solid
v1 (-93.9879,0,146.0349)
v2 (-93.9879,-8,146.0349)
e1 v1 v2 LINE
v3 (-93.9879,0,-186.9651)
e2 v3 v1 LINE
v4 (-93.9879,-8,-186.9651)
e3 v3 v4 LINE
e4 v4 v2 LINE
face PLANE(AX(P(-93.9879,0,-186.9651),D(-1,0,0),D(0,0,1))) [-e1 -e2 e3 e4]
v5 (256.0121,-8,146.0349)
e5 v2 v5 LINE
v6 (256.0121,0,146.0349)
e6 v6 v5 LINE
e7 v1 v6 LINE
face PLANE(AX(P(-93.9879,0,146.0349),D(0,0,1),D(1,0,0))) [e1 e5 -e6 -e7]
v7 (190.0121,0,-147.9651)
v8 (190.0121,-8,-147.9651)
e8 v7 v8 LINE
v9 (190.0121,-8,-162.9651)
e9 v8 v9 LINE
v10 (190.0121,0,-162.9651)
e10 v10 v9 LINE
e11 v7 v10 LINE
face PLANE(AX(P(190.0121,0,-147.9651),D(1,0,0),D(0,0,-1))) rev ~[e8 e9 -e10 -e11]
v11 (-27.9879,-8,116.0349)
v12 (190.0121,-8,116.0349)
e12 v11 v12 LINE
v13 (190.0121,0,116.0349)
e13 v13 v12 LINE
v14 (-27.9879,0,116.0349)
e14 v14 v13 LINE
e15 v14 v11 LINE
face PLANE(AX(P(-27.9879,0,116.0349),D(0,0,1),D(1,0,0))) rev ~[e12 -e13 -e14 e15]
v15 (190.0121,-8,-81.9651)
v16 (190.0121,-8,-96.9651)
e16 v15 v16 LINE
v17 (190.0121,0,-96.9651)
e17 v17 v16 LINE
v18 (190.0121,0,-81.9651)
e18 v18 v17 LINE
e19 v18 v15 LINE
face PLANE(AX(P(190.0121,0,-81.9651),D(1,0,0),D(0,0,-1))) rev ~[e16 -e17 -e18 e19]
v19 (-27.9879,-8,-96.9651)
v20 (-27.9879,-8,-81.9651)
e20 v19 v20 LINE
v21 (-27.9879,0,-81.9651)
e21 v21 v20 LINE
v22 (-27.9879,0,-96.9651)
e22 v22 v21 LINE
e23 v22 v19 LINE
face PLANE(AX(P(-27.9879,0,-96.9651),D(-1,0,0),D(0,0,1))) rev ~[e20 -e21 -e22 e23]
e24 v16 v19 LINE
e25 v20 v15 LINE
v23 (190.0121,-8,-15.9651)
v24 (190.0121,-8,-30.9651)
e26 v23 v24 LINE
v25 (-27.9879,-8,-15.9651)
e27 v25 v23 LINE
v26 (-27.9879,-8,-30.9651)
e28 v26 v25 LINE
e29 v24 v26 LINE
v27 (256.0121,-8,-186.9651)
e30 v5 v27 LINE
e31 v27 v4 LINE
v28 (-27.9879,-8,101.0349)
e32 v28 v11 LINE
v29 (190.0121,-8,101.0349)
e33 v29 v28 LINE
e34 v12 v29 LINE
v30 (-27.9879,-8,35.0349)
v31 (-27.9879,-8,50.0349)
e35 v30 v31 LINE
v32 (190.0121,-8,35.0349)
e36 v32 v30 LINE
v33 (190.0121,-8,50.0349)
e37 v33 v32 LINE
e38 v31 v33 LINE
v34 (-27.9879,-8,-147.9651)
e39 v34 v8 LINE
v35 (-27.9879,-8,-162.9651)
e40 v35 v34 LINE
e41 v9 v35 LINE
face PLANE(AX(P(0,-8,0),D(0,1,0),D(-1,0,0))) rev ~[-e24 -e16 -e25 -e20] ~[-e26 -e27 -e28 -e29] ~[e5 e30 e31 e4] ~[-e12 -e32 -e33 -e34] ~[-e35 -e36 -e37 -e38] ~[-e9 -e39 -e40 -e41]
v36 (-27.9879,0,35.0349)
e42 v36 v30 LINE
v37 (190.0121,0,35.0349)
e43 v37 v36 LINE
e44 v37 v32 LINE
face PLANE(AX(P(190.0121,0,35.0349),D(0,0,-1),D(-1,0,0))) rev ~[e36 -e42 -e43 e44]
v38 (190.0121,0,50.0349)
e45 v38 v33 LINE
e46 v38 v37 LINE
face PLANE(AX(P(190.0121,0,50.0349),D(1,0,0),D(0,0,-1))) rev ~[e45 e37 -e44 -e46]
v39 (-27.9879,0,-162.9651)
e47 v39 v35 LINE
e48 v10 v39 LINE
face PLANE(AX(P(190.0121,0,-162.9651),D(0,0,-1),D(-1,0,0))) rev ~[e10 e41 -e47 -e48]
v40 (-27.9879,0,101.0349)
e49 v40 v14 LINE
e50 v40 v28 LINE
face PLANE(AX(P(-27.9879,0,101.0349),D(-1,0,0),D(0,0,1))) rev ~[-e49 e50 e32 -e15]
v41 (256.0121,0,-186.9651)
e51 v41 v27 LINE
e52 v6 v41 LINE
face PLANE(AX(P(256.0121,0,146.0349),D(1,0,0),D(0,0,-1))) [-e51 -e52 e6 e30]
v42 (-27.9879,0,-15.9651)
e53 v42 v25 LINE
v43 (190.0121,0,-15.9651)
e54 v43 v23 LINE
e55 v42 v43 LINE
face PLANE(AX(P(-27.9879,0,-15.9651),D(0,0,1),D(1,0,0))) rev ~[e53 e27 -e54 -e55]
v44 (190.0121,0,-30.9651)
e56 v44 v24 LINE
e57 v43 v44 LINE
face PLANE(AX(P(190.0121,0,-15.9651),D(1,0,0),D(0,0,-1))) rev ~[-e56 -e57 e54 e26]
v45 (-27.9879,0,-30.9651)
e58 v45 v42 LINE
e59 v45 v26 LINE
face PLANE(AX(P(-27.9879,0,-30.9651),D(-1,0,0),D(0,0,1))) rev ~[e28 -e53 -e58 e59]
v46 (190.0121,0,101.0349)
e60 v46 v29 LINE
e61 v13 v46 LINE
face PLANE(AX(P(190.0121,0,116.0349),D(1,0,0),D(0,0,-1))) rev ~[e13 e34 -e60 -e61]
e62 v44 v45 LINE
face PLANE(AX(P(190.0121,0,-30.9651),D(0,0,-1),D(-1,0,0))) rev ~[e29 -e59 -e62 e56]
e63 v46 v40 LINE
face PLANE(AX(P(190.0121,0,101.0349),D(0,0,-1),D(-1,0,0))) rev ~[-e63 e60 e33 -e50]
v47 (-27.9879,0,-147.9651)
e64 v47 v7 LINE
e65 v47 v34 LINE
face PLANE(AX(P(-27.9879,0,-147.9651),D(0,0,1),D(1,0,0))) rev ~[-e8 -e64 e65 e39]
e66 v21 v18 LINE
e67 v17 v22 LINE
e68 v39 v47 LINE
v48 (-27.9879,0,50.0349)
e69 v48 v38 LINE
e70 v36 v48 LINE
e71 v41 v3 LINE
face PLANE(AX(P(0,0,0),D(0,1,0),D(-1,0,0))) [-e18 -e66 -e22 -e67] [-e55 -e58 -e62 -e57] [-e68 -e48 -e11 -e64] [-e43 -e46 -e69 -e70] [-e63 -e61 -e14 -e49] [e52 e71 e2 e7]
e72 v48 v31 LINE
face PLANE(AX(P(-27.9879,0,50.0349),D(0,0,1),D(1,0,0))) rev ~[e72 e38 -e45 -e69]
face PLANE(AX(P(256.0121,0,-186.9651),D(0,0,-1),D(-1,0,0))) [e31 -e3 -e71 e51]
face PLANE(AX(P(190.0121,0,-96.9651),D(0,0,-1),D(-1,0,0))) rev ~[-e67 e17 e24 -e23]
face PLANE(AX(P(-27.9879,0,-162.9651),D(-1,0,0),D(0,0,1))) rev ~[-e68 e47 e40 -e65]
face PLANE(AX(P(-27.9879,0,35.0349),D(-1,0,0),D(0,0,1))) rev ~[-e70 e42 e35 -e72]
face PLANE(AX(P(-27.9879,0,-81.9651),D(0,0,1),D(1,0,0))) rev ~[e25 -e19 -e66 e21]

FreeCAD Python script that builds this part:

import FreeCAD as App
import Part
import Sketcher

V = App.Vector
Q = App.Units.Quantity


def add_polygon(sketch, points):
    """Adds a closed chain of lines whose ends are joined by coincident constraints."""
    first, n = sketch.GeometryCount, len(points)
    for a, b in zip(points, points[1:] + points[:1]):
        sketch.addGeometry(Part.LineSegment(App.Vector(*a, 0), App.Vector(*b, 0)), False)
    for i in range(n):
        sketch.addConstraint(Sketcher.Constraint("Coincident", first + i, 2, first + (i + 1) % n, 1))

doc = App.newDocument("Part")
params = doc.addObject("Spreadsheet::Sheet", "Params")
for row, (alias, value) in enumerate([
    ("sketch1_width", "350 mm"),
    ("sketch1_height", "333 mm"),
    ("sketch1_height2", "15 mm"),
    ("pad1_length", "8 mm"),
], start=1):
    params.set(f"A{row}", alias)
    params.set(f"B{row}", "=" + value)
    params.setAlias(f"B{row}", alias)

body = doc.addObject("PartDesign::Body", "Body")

sketch1 = body.newObject("Sketcher::SketchObject", "Sketch")
sketch1.AttachmentSupport = (doc.getObject("XZ_Plane"), [""])
sketch1.MapMode = "FlatFace"
add_polygon(sketch1, [(-93.9879, -186.9651), (-93.9879, 146.0349), (256.0121, 146.0349), (256.0121, -186.9651)])
add_polygon(sketch1, [(190.0121, -147.9651), (-27.9879, -147.9651), (-27.9879, -162.9651), (190.0121, -162.9651)])
add_polygon(sketch1, [(190.0121, -81.9651), (-27.9879, -81.9651), (-27.9879, -96.9651), (190.0121, -96.9651)])
add_polygon(sketch1, [(190.0121, -15.9651), (-27.9879, -15.9651), (-27.9879, -30.9651), (190.0121, -30.9651)])
add_polygon(sketch1, [(190.0121, 50.0349), (-27.9879, 50.0349), (-27.9879, 35.0349), (190.0121, 35.0349)])
add_polygon(sketch1, [(190.0121, 116.0349), (-27.9879, 116.0349), (-27.9879, 101.0349), (190.0121, 101.0349)])
sketch1.addConstraint(Sketcher.Constraint("Vertical", 0))
sketch1.addConstraint(Sketcher.Constraint("Horizontal", 1))
sketch1.addConstraint(Sketcher.Constraint("Vertical", 2))
sketch1.addConstraint(Sketcher.Constraint("Horizontal", 3))
sketch1.addConstraint(Sketcher.Constraint("Horizontal", 4))
sketch1.addConstraint(Sketcher.Constraint("Vertical", 5))
sketch1.addConstraint(Sketcher.Constraint("Horizontal", 6))
sketch1.addConstraint(Sketcher.Constraint("Vertical", 7))
sketch1.addConstraint(Sketcher.Constraint("Horizontal", 8))
sketch1.addConstraint(Sketcher.Constraint("Vertical", 9))
sketch1.addConstraint(Sketcher.Constraint("Horizontal", 10))
sketch1.addConstraint(Sketcher.Constraint("Vertical", 11))
sketch1.addConstraint(Sketcher.Constraint("Horizontal", 12))
sketch1.addConstraint(Sketcher.Constraint("Vertical", 13))
sketch1.addConstraint(Sketcher.Constraint("Horizontal", 14))
sketch1.addConstraint(Sketcher.Constraint("Vertical", 15))
sketch1.addConstraint(Sketcher.Constraint("Horizontal", 16))
sketch1.addConstraint(Sketcher.Constraint("Vertical", 17))
sketch1.addConstraint(Sketcher.Constraint("Horizontal", 18))
sketch1.addConstraint(Sketcher.Constraint("Vertical", 19))
sketch1.addConstraint(Sketcher.Constraint("Horizontal", 20))
sketch1.addConstraint(Sketcher.Constraint("Vertical", 21))
sketch1.addConstraint(Sketcher.Constraint("Horizontal", 22))
sketch1.addConstraint(Sketcher.Constraint("Vertical", 23))
sketch1.addConstraint(Sketcher.Constraint("Vertical", 5, 2, 8, 2))
sketch1.addConstraint(Sketcher.Constraint("Vertical", 7, 2, 10, 2))
sketch1.addConstraint(Sketcher.Constraint("Vertical", 9, 2, 12, 2))
sketch1.addConstraint(Sketcher.Constraint("Vertical", 11, 2, 14, 2))
sketch1.addConstraint(Sketcher.Constraint("Vertical", 13, 2, 16, 2))
sketch1.addConstraint(Sketcher.Constraint("Vertical", 15, 2, 18, 2))
sketch1.addConstraint(Sketcher.Constraint("Vertical", 17, 2, 20, 2))
sketch1.addConstraint(Sketcher.Constraint("Vertical", 19, 2, 22, 2))
sketch1.addConstraint(Sketcher.Constraint("Equal", 7, 9))
sketch1.addConstraint(Sketcher.Constraint("Equal", 11, 13))
sketch1.addConstraint(Sketcher.Constraint("Equal", 15, 17))
sketch1.addConstraint(Sketcher.Constraint("Equal", 19, 21))
sketch1.addConstraint(Sketcher.Constraint("DistanceX", 1, 1, 1, 2, Q("350 mm")))
sketch1.addConstraint(Sketcher.Constraint("DistanceY", 0, 1, 0, 2, Q("333 mm")))
sketch1.addConstraint(Sketcher.Constraint("DistanceY", 5, 2, 5, 1, Q("15 mm")))
sketch1.addConstraint(Sketcher.Constraint("DistanceX", 3, 2, 4, 2, Q("66 mm")))
sketch1.addConstraint(Sketcher.Constraint("DistanceX", 6, 2, 2, 2, Q("66 mm")))
sketch1.addConstraint(Sketcher.Constraint("DistanceY", 4, 2, 8, 2, Q("66 mm")))
sketch1.addConstraint(Sketcher.Constraint("DistanceY", 8, 2, 12, 2, Q("66 mm")))
sketch1.addConstraint(Sketcher.Constraint("DistanceY", 12, 2, 16, 2, Q("66 mm")))
sketch1.addConstraint(Sketcher.Constraint("DistanceY", 16, 2, 20, 2, Q("66 mm")))
sketch1.addConstraint(Sketcher.Constraint("DistanceY", 20, 2, 0, 2, Q("30 mm")))
sketch1.addConstraint(Sketcher.Constraint("DistanceX", 0, 2, -1, 1, Q("93.988 mm")))
sketch1.addConstraint(Sketcher.Constraint("DistanceY", -1, 1, 0, 2, Q("146.035 mm")))
sketch1.setExpression("Constraints[60]", "Params.sketch1_width")
sketch1.setExpression("Constraints[61]", "Params.sketch1_height")
sketch1.setExpression("Constraints[62]", "Params.sketch1_height2")
pad1 = body.newObject("PartDesign::Pad", "Pad")
pad1.Profile = sketch1
pad1.setExpression("Length", "Params.pad1_length")

doc.recompute()
